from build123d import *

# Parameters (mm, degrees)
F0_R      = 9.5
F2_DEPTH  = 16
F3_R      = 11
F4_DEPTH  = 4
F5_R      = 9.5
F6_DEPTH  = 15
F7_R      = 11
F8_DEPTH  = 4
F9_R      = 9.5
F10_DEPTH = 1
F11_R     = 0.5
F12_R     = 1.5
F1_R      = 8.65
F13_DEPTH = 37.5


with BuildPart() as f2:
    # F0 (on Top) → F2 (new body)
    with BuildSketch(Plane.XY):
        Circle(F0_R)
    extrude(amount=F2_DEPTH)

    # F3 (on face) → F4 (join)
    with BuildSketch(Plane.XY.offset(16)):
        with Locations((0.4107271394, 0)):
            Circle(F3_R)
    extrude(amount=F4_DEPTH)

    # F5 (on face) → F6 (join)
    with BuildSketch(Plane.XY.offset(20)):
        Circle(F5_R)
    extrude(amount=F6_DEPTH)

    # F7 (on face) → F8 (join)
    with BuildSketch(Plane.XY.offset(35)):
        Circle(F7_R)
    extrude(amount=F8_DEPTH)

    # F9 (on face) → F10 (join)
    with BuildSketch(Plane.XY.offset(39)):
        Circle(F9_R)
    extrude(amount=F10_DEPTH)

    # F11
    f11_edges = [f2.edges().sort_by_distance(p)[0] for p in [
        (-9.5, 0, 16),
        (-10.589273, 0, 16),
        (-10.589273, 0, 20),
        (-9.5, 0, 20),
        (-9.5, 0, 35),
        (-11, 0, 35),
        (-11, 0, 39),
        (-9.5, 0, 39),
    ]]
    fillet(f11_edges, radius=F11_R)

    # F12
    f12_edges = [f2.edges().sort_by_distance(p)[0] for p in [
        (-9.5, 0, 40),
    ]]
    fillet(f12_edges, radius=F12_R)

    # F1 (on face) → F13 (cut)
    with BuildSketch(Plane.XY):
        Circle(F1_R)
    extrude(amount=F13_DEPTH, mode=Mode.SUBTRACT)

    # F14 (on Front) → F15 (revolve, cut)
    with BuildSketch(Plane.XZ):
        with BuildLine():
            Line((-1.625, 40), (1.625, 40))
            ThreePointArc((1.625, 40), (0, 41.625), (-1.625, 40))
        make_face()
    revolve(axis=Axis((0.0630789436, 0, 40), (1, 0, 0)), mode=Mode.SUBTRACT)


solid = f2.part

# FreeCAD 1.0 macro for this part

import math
import FreeCAD as App
import Part
import Sketcher
from FreeCAD import Vector


def edges_at(feature, points):
    """Names of the edges that pass closest to the given points."""
    edges = feature.Shape.Edges
    near = lambda p: min(range(len(edges)), key=lambda i: edges[i].distToShape(Part.Vertex(*p))[0])
    return sorted({f"Edge{near(p) + 1}" for p in points})

doc = App.newDocument("Part")
body = doc.addObject("PartDesign::Body", "Body")

sketch1 = doc.addObject("Sketcher::SketchObject", "Sketch")
body.addObject(sketch1)
sketch1.AttachmentSupport = (doc.XY_Plane, [""])
sketch1.MapMode = "FlatFace"
sketch1.addGeometry(Part.Circle(Vector(0, 0, 0), Vector(0, 0, 1), 9.5), False)
sketch1.addConstraint(Sketcher.Constraint("Coincident", 0, 3, -1, 1))
sketch1.addConstraint(Sketcher.Constraint("Diameter", 0, 19.0))
pad1 = doc.addObject("PartDesign::Pad", "Pad")
body.addObject(pad1)
pad1.Profile = sketch1
pad1.Length = 16

sketch2 = doc.addObject("Sketcher::SketchObject", "Sketch001")
body.addObject(sketch2)
sketch2.AttachmentSupport = (doc.XY_Plane, [""])
sketch2.MapMode = "FlatFace"
sketch2.AttachmentOffset = App.Placement(Vector(0, 0, 16), App.Rotation())
sketch2.addGeometry(Part.Circle(Vector(0.410727, 0, 0), Vector(0, 0, 1), 11), False)
sketch2.addConstraint(Sketcher.Constraint("PointOnObject", 0, 3, -1))
sketch2.addConstraint(Sketcher.Constraint("Diameter", 0, 22.0))
sketch2.addConstraint(Sketcher.Constraint("DistanceX", -1, 1, 0, 3, 0.410727))
pad2 = doc.addObject("PartDesign::Pad", "Pad001")
body.addObject(pad2)
pad2.Profile = sketch2
pad2.Length = 4

sketch3 = doc.addObject("Sketcher::SketchObject", "Sketch002")
body.addObject(sketch3)
sketch3.AttachmentSupport = (doc.XY_Plane, [""])
sketch3.MapMode = "FlatFace"
sketch3.AttachmentOffset = App.Placement(Vector(0, 0, 20), App.Rotation())
sketch3.addGeometry(Part.Circle(Vector(0, 0, 0), Vector(0, 0, 1), 9.5), False)
sketch3.addConstraint(Sketcher.Constraint("Coincident", 0, 3, -1, 1))
sketch3.addConstraint(Sketcher.Constraint("Diameter", 0, 19.0))
pad3 = doc.addObject("PartDesign::Pad", "Pad002")
body.addObject(pad3)
pad3.Profile = sketch3
pad3.Length = 15

sketch4 = doc.addObject("Sketcher::SketchObject", "Sketch003")
body.addObject(sketch4)
sketch4.AttachmentSupport = (doc.XY_Plane, [""])
sketch4.MapMode = "FlatFace"
sketch4.AttachmentOffset = App.Placement(Vector(0, 0, 35), App.Rotation())
sketch4.addGeometry(Part.Circle(Vector(0, 0, 0), Vector(0, 0, 1), 11), False)
sketch4.addConstraint(Sketcher.Constraint("Coincident", 0, 3, -1, 1))
sketch4.addConstraint(Sketcher.Constraint("Diameter", 0, 22.0))
pad4 = doc.addObject("PartDesign::Pad", "Pad003")
body.addObject(pad4)
pad4.Profile = sketch4
pad4.Length = 4

sketch5 = doc.addObject("Sketcher::SketchObject", "Sketch004")
body.addObject(sketch5)
sketch5.AttachmentSupport = (doc.XY_Plane, [""])
sketch5.MapMode = "FlatFace"
sketch5.AttachmentOffset = App.Placement(Vector(0, 0, 39), App.Rotation())
sketch5.addGeometry(Part.Circle(Vector(0, 0, 0), Vector(0, 0, 1), 9.5), False)
sketch5.addConstraint(Sketcher.Constraint("Coincident", 0, 3, -1, 1))
sketch5.addConstraint(Sketcher.Constraint("Diameter", 0, 19.0))
pad5 = doc.addObject("PartDesign::Pad", "Pad004")
body.addObject(pad5)
pad5.Profile = sketch5
pad5.Length = 1
doc.recompute()

fillet = doc.addObject("PartDesign::Fillet", "Fillet")
body.addObject(fillet)
fillet.Base = (pad5, edges_at(pad5, [
    (-9.5, 0, 16),
    (-10.589, 0, 16),
    (-10.589, 0, 20),
    (-9.5, 0, 20),
    (-9.5, 0, 35),
    (-11, 0, 35),
    (-11, 0, 39),
    (-9.5, 0, 39),
]))
fillet.Radius = 0.5
doc.recompute()

fillet2 = doc.addObject("PartDesign::Fillet", "Fillet001")
body.addObject(fillet2)
fillet2.Base = (fillet, edges_at(fillet, [(-9.5, 0, 40)]))
fillet2.Radius = 1.5

sketch6 = doc.addObject("Sketcher::SketchObject", "Sketch005")
body.addObject(sketch6)
sketch6.AttachmentSupport = (doc.XY_Plane, [""])
sketch6.MapMode = "FlatFace"
sketch6.addGeometry(Part.Circle(Vector(0, 0, 0), Vector(0, 0, 1), 8.65), False)
sketch6.addConstraint(Sketcher.Constraint("Coincident", 0, 3, -1, 1))
sketch6.addConstraint(Sketcher.Constraint("Diameter", 0, 17.3))
pocket1 = doc.addObject("PartDesign::Pocket", "Pocket")
body.addObject(pocket1)
pocket1.Profile = sketch6
pocket1.Length = 37.5
pocket1.Reversed = True

sketch7 = doc.addObject("Sketcher::SketchObject", "Sketch006")
body.addObject(sketch7)
sketch7.AttachmentSupport = (doc.XZ_Plane, [""])
sketch7.MapMode = "FlatFace"
sketch7.addGeometry(Part.LineSegment(Vector(-1.625, 40, 0), Vector(1.625, 40, 0)), False)
sketch7.addGeometry(Part.ArcOfCircle(Part.Circle(Vector(0, 40, 0), Vector(0, 0, 1), 1.625), math.radians(0), math.radians(180)), False)
sketch7.addGeometry(Part.LineSegment(Vector(-1.625, 40, 0), Vector(1.625, 40, 0)), True)
sketch7.addConstraint(Sketcher.Constraint("Coincident", 0, 1, 1, 2))
sketch7.addConstraint(Sketcher.Constraint("Coincident", 1, 1, 0, 2))
sketch7.addConstraint(Sketcher.Constraint("Horizontal", 0))
sketch7.addConstraint(Sketcher.Constraint("Horizontal", 2))
sketch7.addConstraint(Sketcher.Constraint("Coincident", 2, 1, 0, 1))
sketch7.addConstraint(Sketcher.Constraint("PointOnObject", 1, 3, -2))
sketch7.addConstraint(Sketcher.Constraint("Horizontal", 1, 3, 0, 1))
sketch7.addConstraint(Sketcher.Constraint("Equal", 0, 2))
sketch7.addConstraint(Sketcher.Constraint("DistanceY", -1, 1, 1, 3, 40.0))
sketch7.addConstraint(Sketcher.Constraint("Radius", 1, 1.625))
groove = doc.addObject("PartDesign::Groove", "Groove")
body.addObject(groove)
groove.Profile = sketch7
groove.ReferenceAxis = (sketch7, ["Axis0"])
groove.Angle = 360

doc.recompute()
